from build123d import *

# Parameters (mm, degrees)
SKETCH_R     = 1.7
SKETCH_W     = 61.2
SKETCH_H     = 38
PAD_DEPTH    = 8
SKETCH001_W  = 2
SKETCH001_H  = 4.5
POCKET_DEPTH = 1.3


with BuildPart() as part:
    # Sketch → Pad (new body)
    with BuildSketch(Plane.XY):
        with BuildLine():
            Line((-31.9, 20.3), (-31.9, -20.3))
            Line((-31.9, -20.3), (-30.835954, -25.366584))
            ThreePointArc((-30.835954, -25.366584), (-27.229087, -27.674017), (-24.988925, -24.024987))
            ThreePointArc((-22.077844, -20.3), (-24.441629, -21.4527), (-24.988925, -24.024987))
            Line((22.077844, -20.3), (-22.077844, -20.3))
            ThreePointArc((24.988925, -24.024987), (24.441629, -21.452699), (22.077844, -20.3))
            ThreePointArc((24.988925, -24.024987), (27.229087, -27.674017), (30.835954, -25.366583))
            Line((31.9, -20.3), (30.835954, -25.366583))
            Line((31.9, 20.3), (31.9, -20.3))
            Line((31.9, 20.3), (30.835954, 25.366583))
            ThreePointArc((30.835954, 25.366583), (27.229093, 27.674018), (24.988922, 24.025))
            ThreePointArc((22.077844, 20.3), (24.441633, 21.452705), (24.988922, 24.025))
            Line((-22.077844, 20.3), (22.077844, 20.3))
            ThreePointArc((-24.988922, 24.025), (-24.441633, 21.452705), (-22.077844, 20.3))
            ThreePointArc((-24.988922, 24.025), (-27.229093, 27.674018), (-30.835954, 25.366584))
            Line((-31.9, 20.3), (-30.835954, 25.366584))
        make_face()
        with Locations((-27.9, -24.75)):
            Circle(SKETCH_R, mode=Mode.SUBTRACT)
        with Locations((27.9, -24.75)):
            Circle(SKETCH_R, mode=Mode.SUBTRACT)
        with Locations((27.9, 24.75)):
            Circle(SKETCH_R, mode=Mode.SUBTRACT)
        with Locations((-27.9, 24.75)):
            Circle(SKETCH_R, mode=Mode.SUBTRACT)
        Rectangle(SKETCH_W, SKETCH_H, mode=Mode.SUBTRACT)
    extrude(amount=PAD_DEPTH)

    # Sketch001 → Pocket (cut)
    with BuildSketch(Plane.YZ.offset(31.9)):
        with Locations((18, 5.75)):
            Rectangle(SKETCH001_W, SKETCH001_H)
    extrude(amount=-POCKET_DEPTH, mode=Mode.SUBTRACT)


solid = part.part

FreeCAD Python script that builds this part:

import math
import FreeCAD as App
import Part
import Sketcher

V = App.Vector

doc = App.newDocument("Part")
body = doc.addObject("PartDesign::Body", "Body")

# Sketch on XY plane
sketch1 = body.newObject("Sketcher::SketchObject", "Sketch")
sketch1.AttachmentSupport = (doc.getObject("XY_Plane"), [""])
sketch1.MapMode = "FlatFace"
sketch1.addGeometry([
    Part.LineSegment(V(-31.9, 20.3, 0), V(-31.9, -20.3, 0)),  # 0
    Part.LineSegment(V(-31.9, -20.3, 0), V(-30.835954, -25.366584, 0)),  # 1
    Part.ArcOfCircle(Part.Circle(V(-27.9, -24.75, 0), V(0, 0, 1), 3), math.radians(-168.139586), math.radians(13.985178)),  # 2
    Part.ArcOfCircle(Part.Circle(V(-22.077843, -23.300001, 0), V(0, 0, 1), 3.000001), math.radians(90.000018), math.radians(193.984659)),  # 3
    Part.LineSegment(V(-22.077844, -20.3, 0), V(22.077844, -20.3, 0)),  # 4
    Part.ArcOfCircle(Part.Circle(V(22.077844, -23.3, 0), V(0, 0, 1), 3), math.radians(-13.984683), math.radians(90.000006)),  # 5
    Part.ArcOfCircle(Part.Circle(V(27.9, -24.75, 0), V(0, 0, 1), 3), math.radians(166.01482), math.radians(348.139606)),  # 6
    Part.LineSegment(V(30.835954, -25.366583, 0), V(31.9, -20.3, 0)),  # 7
    Part.LineSegment(V(31.9, -20.3, 0), V(31.9, 20.3, 0)),  # 8
    Part.LineSegment(V(31.9, 20.3, 0), V(30.835954, 25.366583, 0)),  # 9
    Part.ArcOfCircle(Part.Circle(V(27.9, 24.75, 0), V(0, 0, 1), 3), math.radians(11.860398), math.radians(193.98492)),  # 10
    Part.ArcOfCircle(Part.Circle(V(22.077843, 23.300001, 0), V(0, 0, 1), 3.000001), math.radians(-89.999982), math.radians(13.984911)),  # 11
    Part.LineSegment(V(22.077844, 20.3, 0), V(-22.077844, 20.3, 0)),  # 12
    Part.ArcOfCircle(Part.Circle(V(-22.077843, 23.300001, 0), V(0, 0, 1), 3.000001), math.radians(166.015089), math.radians(269.999982)),  # 13
    Part.ArcOfCircle(Part.Circle(V(-27.9, 24.749999, 0), V(0, 0, 1), 3), math.radians(-13.984918), math.radians(168.139581)),  # 14
    Part.LineSegment(V(-30.835954, 25.366584, 0), V(-31.9, 20.3, 0)),  # 15
    Part.Circle(V(-27.9, -24.75, 0), V(0, 0, 1), 1.7),  # 16
    Part.Circle(V(27.9, -24.75, 0), V(0, 0, 1), 1.7),  # 17
    Part.Circle(V(-27.9, 24.75, 0), V(0, 0, 1), 1.7),  # 18
    Part.LineSegment(V(30.6, -19, 0), V(-30.6, -19, 0)),  # 19
    Part.LineSegment(V(-30.6, -19, 0), V(-30.6, 19, 0)),  # 20
    Part.LineSegment(V(-30.6, 19, 0), V(30.6, 19, 0)),  # 21
    Part.LineSegment(V(30.6, 19, 0), V(30.6, -19, 0)),  # 22
    Part.Circle(V(27.9, 24.75, 0), V(0, 0, 1), 1.7),  # 23
], False)
sketch1.addConstraint([
    Sketcher.Constraint("Coincident", 0, 2, 1, 1),
    Sketcher.Constraint("Tangent", 1, 2, 2, 1),
    Sketcher.Constraint("Coincident", 2, 2, 3, 2),
    Sketcher.Constraint("Tangent", 3, 1, 4, 1),
    Sketcher.Constraint("Tangent", 4, 2, 5, 2),
    Sketcher.Constraint("Coincident", 5, 1, 6, 1),
    Sketcher.Constraint("Tangent", 6, 2, 7, 1),
    Sketcher.Constraint("Coincident", 7, 2, 8, 1),
    Sketcher.Constraint("Coincident", 8, 2, 9, 1),
    Sketcher.Constraint("Tangent", 9, 2, 10, 1),
    Sketcher.Constraint("Tangent", 10, 2, 11, 2),
    Sketcher.Constraint("Tangent", 11, 1, 12, 1),
    Sketcher.Constraint("Tangent", 12, 2, 13, 2),
    Sketcher.Constraint("Tangent", 13, 1, 14, 1),
    Sketcher.Constraint("Tangent", 14, 2, 15, 1),
    Sketcher.Constraint("Coincident", 15, 2, 0, 1),
    Sketcher.Constraint("Coincident", 19, 2, 20, 1),
    Sketcher.Constraint("Coincident", 20, 2, 21, 1),
    Sketcher.Constraint("Coincident", 21, 2, 22, 1),
    Sketcher.Constraint("Coincident", 22, 2, 19, 1),
    Sketcher.Constraint("Vertical", 0),
    Sketcher.Constraint("Horizontal", 4),
    Sketcher.Constraint("Vertical", 8),
    Sketcher.Constraint("Horizontal", 12),
    Sketcher.Constraint("Horizontal", 19),
    Sketcher.Constraint("Vertical", 20),
    Sketcher.Constraint("Horizontal", 21),
    Sketcher.Constraint("Vertical", 22),
    Sketcher.Constraint("Coincident", 16, 3, 2, 3),
    Sketcher.Constraint("Coincident", 17, 3, 6, 3),
    Sketcher.Constraint("Coincident", 18, 3, 14, 3),
    Sketcher.Constraint("Coincident", 23, 3, 10, 3),
    Sketcher.Constraint("Equal", 2, 3),
    Sketcher.Constraint("Equal", 3, 5),
    Sketcher.Constraint("Equal", 5, 6),
    Sketcher.Constraint("Equal", 6, 10),
    Sketcher.Constraint("Equal", 10, 11),
    Sketcher.Constraint("Equal", 11, 13),
    Sketcher.Constraint("Equal", 13, 14),
    Sketcher.Constraint("Equal", 16, 17),
    Sketcher.Constraint("Equal", 17, 18),
    Sketcher.Constraint("Equal", 18, 23),
    Sketcher.Constraint("Symmetric", 2, 3, 10, 3, -1, 1),
    Sketcher.Constraint("Symmetric", 5, 3, 13, 3, -1, 1),
    Sketcher.Constraint("Symmetric", 0, 2, 8, 2, -1, 1),
    Sketcher.Constraint("Symmetric", 6, 2, 14, 2, -1, 1),
    Sketcher.Constraint("Symmetric", 19, 2, 21, 2, -1, 1),
    Sketcher.Constraint("Symmetric", 2, 3, 6, 3, -2),
    Sketcher.Constraint("Horizontal", 0, 2, 3, 1),
    Sketcher.Constraint("Horizontal", 2, 2, 5, 1),
    Sketcher.Constraint("Horizontal", 1, 2, 6, 2),
    Sketcher.Constraint("Horizontal", 12, 2, 15, 2),
    Sketcher.Constraint("Radius", 2, 3.0),
    Sketcher.Constraint("Diameter", 16, 3.4),
    Sketcher.Constraint("DistanceY", 20, 1, 20, 2, 38.0),
    Sketcher.Constraint("DistanceX", 19, 2, 19, 1, 61.2),
    Sketcher.Constraint("DistanceY", 0, 2, 0, 1, 40.6),
    Sketcher.Constraint("DistanceX", 0, 2, 2, 3, 4.0),
    Sketcher.Constraint("DistanceX", 2, 3, -1, 1, 27.9),
    Sketcher.Constraint("DistanceY", 6, 3, 10, 3, 49.499999),
])
pad1 = body.newObject("PartDesign::Pad", "Pad")
pad1.Profile = sketch1
pad1.Length = 8

# Sketch on YZ plane
sketch2 = body.newObject("Sketcher::SketchObject", "Sketch001")
sketch2.AttachmentSupport = (doc.getObject("YZ_Plane"), [""])
sketch2.MapMode = "FlatFace"
sketch2.AttachmentOffset = App.Placement(V(0, 0, 31.9), App.Rotation())
sketch2.addGeometry([
    Part.LineSegment(V(17, 8, 0), V(17, 3.5, 0)),
    Part.LineSegment(V(17, 3.5, 0), V(19, 3.5, 0)),
    Part.LineSegment(V(19, 3.5, 0), V(19, 8, 0)),
    Part.LineSegment(V(19, 8, 0), V(17, 8, 0)),
], False)
sketch2.addConstraint([
    Sketcher.Constraint("Coincident", 0, 2, 1, 1),
    Sketcher.Constraint("Coincident", 1, 2, 2, 1),
    Sketcher.Constraint("Coincident", 2, 2, 3, 1),
    Sketcher.Constraint("Coincident", 3, 2, 0, 1),
    Sketcher.Constraint("Vertical", 0),
    Sketcher.Constraint("Horizontal", 1),
    Sketcher.Constraint("Vertical", 2),
    Sketcher.Constraint("Horizontal", 3),
    Sketcher.Constraint("DistanceX", 1, 1, 1, 2, 2.0),
    Sketcher.Constraint("DistanceY", 0, 2, 0, 1, 4.5),
    Sketcher.Constraint("DistanceX", -1, 1, 0, 2, 17.0),
    Sketcher.Constraint("DistanceY", -1, 1, 2, 2, 8.0),
])
pocket1 = body.newObject("PartDesign::Pocket", "Pocket")
pocket1.Profile = sketch2
pocket1.Length = 1.3

doc.recompute()
